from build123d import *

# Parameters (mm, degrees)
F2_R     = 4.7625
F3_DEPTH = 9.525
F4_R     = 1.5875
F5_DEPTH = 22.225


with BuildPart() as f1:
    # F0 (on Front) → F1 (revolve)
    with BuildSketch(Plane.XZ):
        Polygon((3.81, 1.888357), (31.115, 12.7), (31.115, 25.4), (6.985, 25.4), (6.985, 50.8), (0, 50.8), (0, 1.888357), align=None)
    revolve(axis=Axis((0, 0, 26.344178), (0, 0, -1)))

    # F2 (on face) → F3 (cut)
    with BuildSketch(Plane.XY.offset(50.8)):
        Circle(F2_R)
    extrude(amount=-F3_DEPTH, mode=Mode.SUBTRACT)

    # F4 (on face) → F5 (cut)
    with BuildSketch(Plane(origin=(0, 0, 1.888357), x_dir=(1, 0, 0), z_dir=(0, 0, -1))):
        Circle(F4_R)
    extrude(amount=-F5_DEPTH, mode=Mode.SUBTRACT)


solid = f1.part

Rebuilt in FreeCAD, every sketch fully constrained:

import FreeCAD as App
import Part
import Sketcher

V = App.Vector
Q = App.Units.Quantity

doc = App.newDocument("Part")
params = doc.addObject("Spreadsheet::Sheet", "Params")
for row, (alias, value) in enumerate([
    ("sketch1_height", "1 in"),
    ("sketch1_height2", "0.5 in"),
    ("sketch1_width", "0.95 in"),
    ("sketch1_width2", "0.15 in"),
    ("sketch1_width3", "0.275 in"),
    ("revolution_angle", "360 deg"),
    ("sketch2_diameter", "0.375 in"),
    ("pocket1_length", "0.375 in"),
    ("sketch3_diameter", "0.125 in"),
    ("pocket2_length", "0.875 in"),
], start=1):
    params.set(f"A{row}", alias)
    params.set(f"B{row}", "=" + value)
    params.setAlias(f"B{row}", alias)

body = doc.addObject("PartDesign::Body", "Body")

# Sketch on XZ plane
sketch1 = body.newObject("Sketcher::SketchObject", "Sketch")
sketch1.AttachmentSupport = (doc.getObject("XZ_Plane"), [""])
sketch1.MapMode = "FlatFace"
sketch1.addGeometry(Part.LineSegment(V(3.81, 1.888357, 0), V(31.115, 12.7, 0)), False)
sketch1.addGeometry(Part.LineSegment(V(31.115, 12.7, 0), V(31.115, 25.4, 0)), False)
sketch1.addGeometry(Part.LineSegment(V(31.115, 25.4, 0), V(6.985, 25.4, 0)), False)
sketch1.addGeometry(Part.LineSegment(V(6.985, 25.4, 0), V(6.985, 50.8, 0)), False)
sketch1.addGeometry(Part.LineSegment(V(6.985, 50.8, 0), V(0, 50.8, 0)), False)
sketch1.addGeometry(Part.LineSegment(V(0, 50.8, 0), V(0, 1.888357, 0)), False)
sketch1.addGeometry(Part.LineSegment(V(0, 1.888357, 0), V(3.81, 1.888357, 0)), False)
sketch1.addConstraint(Sketcher.Constraint("Coincident", 0, 2, 1, 1))
sketch1.addConstraint(Sketcher.Constraint("Coincident", 1, 2, 2, 1))
sketch1.addConstraint(Sketcher.Constraint("Coincident", 2, 2, 3, 1))
sketch1.addConstraint(Sketcher.Constraint("Coincident", 3, 2, 4, 1))
sketch1.addConstraint(Sketcher.Constraint("Coincident", 4, 2, 5, 1))
sketch1.addConstraint(Sketcher.Constraint("Coincident", 5, 2, 6, 1))
sketch1.addConstraint(Sketcher.Constraint("Coincident", 6, 2, 0, 1))
sketch1.addConstraint(Sketcher.Constraint("Vertical", 1))
sketch1.addConstraint(Sketcher.Constraint("Horizontal", 2))
sketch1.addConstraint(Sketcher.Constraint("Vertical", 3))
sketch1.addConstraint(Sketcher.Constraint("Horizontal", 4))
sketch1.addConstraint(Sketcher.Constraint("Vertical", 5))
sketch1.addConstraint(Sketcher.Constraint("Horizontal", 6))
sketch1.addConstraint(Sketcher.Constraint("PointOnObject", 4, 2, -2))
sketch1.addConstraint(Sketcher.Constraint("DistanceY", 3, 1, 3, 2, Q("1 in")))
sketch1.addConstraint(Sketcher.Constraint("DistanceY", 1, 1, 1, 2, Q("0.5 in")))
sketch1.addConstraint(Sketcher.Constraint("DistanceY", -1, 1, 1, 2, Q("1 in")))
sketch1.addConstraint(Sketcher.Constraint("DistanceX", 2, 2, 2, 1, Q("0.95 in")))
sketch1.addConstraint(Sketcher.Constraint("DistanceX", 6, 1, 6, 2, Q("0.15 in")))
sketch1.addConstraint(Sketcher.Constraint("DistanceX", 4, 2, 4, 1, Q("0.275 in")))
sketch1.addConstraint(Sketcher.Constraint("Distance", 0, 29.367578))
sketch1.setExpression("Constraints[14]", "Params.sketch1_height")
sketch1.setExpression("Constraints[15]", "Params.sketch1_height2")
sketch1.setExpression("Constraints[17]", "Params.sketch1_width")
sketch1.setExpression("Constraints[18]", "Params.sketch1_width2")
sketch1.setExpression("Constraints[19]", "Params.sketch1_width3")
revolution = body.newObject("PartDesign::Revolution", "Revolution")
revolution.Profile = sketch1
revolution.ReferenceAxis = (sketch1, ["V_Axis"])
revolution.setExpression("Angle", "Params.revolution_angle")

# Sketch on XY plane
sketch2 = body.newObject("Sketcher::SketchObject", "Sketch001")
sketch2.AttachmentSupport = (doc.getObject("XY_Plane"), [""])
sketch2.MapMode = "FlatFace"
sketch2.AttachmentOffset = App.Placement(V(0, 0, 2 * 25.4), App.Rotation())
sketch2.addGeometry(Part.Circle(V(0, 0, 0), V(0, 0, 1), 4.7625), False)
sketch2.addConstraint(Sketcher.Constraint("Coincident", 0, 3, -1, 1))
sketch2.addConstraint(Sketcher.Constraint("Diameter", 0, Q("0.375 in")))
sketch2.setExpression("Constraints[1]", "Params.sketch2_diameter")
pocket1 = body.newObject("PartDesign::Pocket", "Pocket")
pocket1.Profile = sketch2
pocket1.setExpression("Length", "Params.pocket1_length")

# Sketch on XY plane
sketch3 = body.newObject("Sketcher::SketchObject", "Sketch002")
sketch3.AttachmentSupport = (doc.getObject("XY_Plane"), [""])
sketch3.MapMode = "FlatFace"
sketch3.AttachmentOffset = App.Placement(V(0, 0, 1.888357), App.Rotation())
sketch3.addGeometry(Part.Circle(V(0, 0, 0), V(0, 0, 1), 1.5875), False)
sketch3.addConstraint(Sketcher.Constraint("Coincident", 0, 3, -1, 1))
sketch3.addConstraint(Sketcher.Constraint("Diameter", 0, Q("0.125 in")))
sketch3.setExpression("Constraints[1]", "Params.sketch3_diameter")
pocket2 = body.newObject("PartDesign::Pocket", "Pocket001")
pocket2.Profile = sketch3
pocket2.setExpression("Length", "Params.pocket2_length")
pocket2.Reversed = True

doc.recompute()
